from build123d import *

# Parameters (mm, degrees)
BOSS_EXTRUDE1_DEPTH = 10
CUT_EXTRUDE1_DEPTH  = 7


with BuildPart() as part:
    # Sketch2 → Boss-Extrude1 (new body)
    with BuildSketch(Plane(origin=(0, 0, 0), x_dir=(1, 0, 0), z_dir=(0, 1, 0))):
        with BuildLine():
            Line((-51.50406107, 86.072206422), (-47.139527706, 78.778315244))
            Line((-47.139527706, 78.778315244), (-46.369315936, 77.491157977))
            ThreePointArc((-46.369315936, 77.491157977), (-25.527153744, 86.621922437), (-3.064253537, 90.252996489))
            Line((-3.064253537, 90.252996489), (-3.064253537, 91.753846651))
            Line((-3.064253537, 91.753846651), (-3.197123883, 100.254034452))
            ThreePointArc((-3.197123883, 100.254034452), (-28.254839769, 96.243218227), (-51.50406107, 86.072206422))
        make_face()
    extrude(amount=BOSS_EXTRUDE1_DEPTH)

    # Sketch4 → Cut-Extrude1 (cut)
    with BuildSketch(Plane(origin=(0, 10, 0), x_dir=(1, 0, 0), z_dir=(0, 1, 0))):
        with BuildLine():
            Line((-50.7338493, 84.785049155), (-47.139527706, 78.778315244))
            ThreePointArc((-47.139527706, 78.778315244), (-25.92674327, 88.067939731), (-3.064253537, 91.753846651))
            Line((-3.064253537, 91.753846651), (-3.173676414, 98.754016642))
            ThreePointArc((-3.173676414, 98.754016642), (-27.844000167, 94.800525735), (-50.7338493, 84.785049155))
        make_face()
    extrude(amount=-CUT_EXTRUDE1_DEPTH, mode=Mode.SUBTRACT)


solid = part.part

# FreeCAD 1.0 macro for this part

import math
import FreeCAD as App
import Part
import Sketcher
from FreeCAD import Vector

doc = App.newDocument("Part")
body = doc.addObject("PartDesign::Body", "Body")

sketch1 = body.newObject("Sketcher::SketchObject", "Sketch")
sketch1.AttachmentSupport = (doc.getObject("XZ_Plane"), [""])
sketch1.MapMode = "FlatFace"
sketch1.addGeometry([
    Part.LineSegment(Vector(-51.504061, -86.072206, 0), Vector(-47.139528, -78.778315, 0)),
    Part.LineSegment(Vector(-47.139528, -78.778315, 0), Vector(-46.369316, -77.491158, 0)),
    Part.ArcOfCircle(Part.Circle(Vector(0, 0, 0), Vector(0, 0, 1), 90.305), math.radians(-120.895544), math.radians(-91.944549)),
    Part.LineSegment(Vector(-3.064254, -90.252996, 0), Vector(-3.064254, -91.753847, 0)),
    Part.LineSegment(Vector(-3.064254, -91.753847, 0), Vector(-3.197124, -100.254034, 0)),
    Part.ArcOfCircle(Part.Circle(Vector(0, 0, 0), Vector(0, 0, 1), 100.305), math.radians(-120.895544), math.radians(-91.826556)),
], False)
sketch1.addConstraint([
    Sketcher.Constraint("Coincident", 0, 2, 1, 1),
    Sketcher.Constraint("Coincident", 1, 2, 2, 1),
    Sketcher.Constraint("Coincident", 2, 2, 3, 1),
    Sketcher.Constraint("Coincident", 3, 2, 4, 1),
    Sketcher.Constraint("Coincident", 4, 2, 5, 2),
    Sketcher.Constraint("Coincident", 5, 1, 0, 1),
    Sketcher.Constraint("Vertical", 3),
    Sketcher.Constraint("Coincident", 2, 3, -1, 1),
    Sketcher.Constraint("Coincident", 5, 3, -1, 1),
    Sketcher.Constraint("Radius", 2, 90.305),
    Sketcher.Constraint("Radius", 5, 100.305),
    Sketcher.Constraint("Distance", 0, 8.5),
    Sketcher.Constraint("DistanceY", 3, 2, 3, 1, 1.50085),
    Sketcher.Constraint("DistanceX", 5, 1, -1, 1, 51.504061),
    Sketcher.Constraint("DistanceX", 0, 2, 1, 2, 0.770212),
    Sketcher.Constraint("DistanceY", 2, 2, 1, 2, 12.761839),
    Sketcher.Constraint("DistanceX", 4, 2, 3, 2, 0.13287),
    Sketcher.Constraint("DistanceX", 0, 2, -1, 1, 47.139528),
])
pad1 = body.newObject("PartDesign::Pad", "Pad")
pad1.Profile = sketch1
pad1.Length = 10
pad1.Reversed = True

sketch2 = body.newObject("Sketcher::SketchObject", "Sketch001")
sketch2.AttachmentSupport = (doc.getObject("XZ_Plane"), [""])
sketch2.MapMode = "FlatFace"
sketch2.AttachmentOffset = App.Placement(Vector(0, 0, -10), App.Rotation())
sketch2.addGeometry([
    Part.LineSegment(Vector(-51, -85, 0), Vector(-47, -79, 0)),
    Part.ArcOfCircle(Part.Circle(Vector(0, 0, 0), Vector(0, 0, 1), 92), math.radians(-121), math.radians(-92)),
    Part.LineSegment(Vector(-3, -92, 0), Vector(-3, -99, 0)),
    Part.ArcOfCircle(Part.Circle(Vector(0, 0, 0), Vector(0, 0, 1), 99), math.radians(-121), math.radians(-92)),
], False)
sketch2.addConstraint([
    Sketcher.Constraint("Coincident", 0, 2, 1, 1),
    Sketcher.Constraint("Coincident", 1, 2, 2, 1),
    Sketcher.Constraint("Coincident", 2, 2, 3, 2),
    Sketcher.Constraint("Coincident", 3, 1, 0, 1),
    Sketcher.Constraint("Coincident", 1, 3, -1, 1),
    Sketcher.Constraint("Coincident", 3, 3, -1, 1),
    Sketcher.Constraint("Distance", 0, 7.0),
    Sketcher.Constraint("Radius", 1, 91.805),
    Sketcher.Constraint("DistanceY", 2, 2, 0, 2, 19.975701),
    Sketcher.Constraint("DistanceX", 3, 1, -1, 1, 50.733849),
    Sketcher.Constraint("DistanceY", 1, 2, 0, 2, 12.975531),
    Sketcher.Constraint("DistanceX", 0, 2, 2, 2, 43.965851),
])
pocket1 = body.newObject("PartDesign::Pocket", "Pocket")
pocket1.Profile = sketch2
pocket1.Length = 7
pocket1.Reversed = True

doc.recompute()
